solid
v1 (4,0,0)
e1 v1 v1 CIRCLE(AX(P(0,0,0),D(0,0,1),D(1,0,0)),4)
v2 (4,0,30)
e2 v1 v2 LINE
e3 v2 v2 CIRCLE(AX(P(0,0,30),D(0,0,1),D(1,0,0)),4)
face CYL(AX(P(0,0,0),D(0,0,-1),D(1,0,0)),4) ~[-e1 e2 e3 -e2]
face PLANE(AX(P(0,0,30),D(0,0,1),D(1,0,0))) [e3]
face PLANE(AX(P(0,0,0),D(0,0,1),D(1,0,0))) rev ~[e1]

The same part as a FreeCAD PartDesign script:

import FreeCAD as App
import Part
import Sketcher

V = App.Vector
Q = App.Units.Quantity

doc = App.newDocument("Part")
body = doc.addObject("PartDesign::Body", "Body")

# Sketch on XY plane
sketch1 = body.newObject("Sketcher::SketchObject", "Sketch")
sketch1.AttachmentSupport = (doc.getObject("XY_Plane"), [""])
sketch1.MapMode = "FlatFace"
sketch1.addGeometry(Part.Circle(V(0, 0, 0), V(0, 0, 1), 4), False)
sketch1.addConstraint(Sketcher.Constraint("Coincident", 0, 3, -1, 1))
sketch1.addConstraint(Sketcher.Constraint("Diameter", 0, Q("8 mm")))
pad1 = body.newObject("PartDesign::Pad", "Pad")
pad1.Profile = sketch1
pad1.Length = 30

doc.recompute()
